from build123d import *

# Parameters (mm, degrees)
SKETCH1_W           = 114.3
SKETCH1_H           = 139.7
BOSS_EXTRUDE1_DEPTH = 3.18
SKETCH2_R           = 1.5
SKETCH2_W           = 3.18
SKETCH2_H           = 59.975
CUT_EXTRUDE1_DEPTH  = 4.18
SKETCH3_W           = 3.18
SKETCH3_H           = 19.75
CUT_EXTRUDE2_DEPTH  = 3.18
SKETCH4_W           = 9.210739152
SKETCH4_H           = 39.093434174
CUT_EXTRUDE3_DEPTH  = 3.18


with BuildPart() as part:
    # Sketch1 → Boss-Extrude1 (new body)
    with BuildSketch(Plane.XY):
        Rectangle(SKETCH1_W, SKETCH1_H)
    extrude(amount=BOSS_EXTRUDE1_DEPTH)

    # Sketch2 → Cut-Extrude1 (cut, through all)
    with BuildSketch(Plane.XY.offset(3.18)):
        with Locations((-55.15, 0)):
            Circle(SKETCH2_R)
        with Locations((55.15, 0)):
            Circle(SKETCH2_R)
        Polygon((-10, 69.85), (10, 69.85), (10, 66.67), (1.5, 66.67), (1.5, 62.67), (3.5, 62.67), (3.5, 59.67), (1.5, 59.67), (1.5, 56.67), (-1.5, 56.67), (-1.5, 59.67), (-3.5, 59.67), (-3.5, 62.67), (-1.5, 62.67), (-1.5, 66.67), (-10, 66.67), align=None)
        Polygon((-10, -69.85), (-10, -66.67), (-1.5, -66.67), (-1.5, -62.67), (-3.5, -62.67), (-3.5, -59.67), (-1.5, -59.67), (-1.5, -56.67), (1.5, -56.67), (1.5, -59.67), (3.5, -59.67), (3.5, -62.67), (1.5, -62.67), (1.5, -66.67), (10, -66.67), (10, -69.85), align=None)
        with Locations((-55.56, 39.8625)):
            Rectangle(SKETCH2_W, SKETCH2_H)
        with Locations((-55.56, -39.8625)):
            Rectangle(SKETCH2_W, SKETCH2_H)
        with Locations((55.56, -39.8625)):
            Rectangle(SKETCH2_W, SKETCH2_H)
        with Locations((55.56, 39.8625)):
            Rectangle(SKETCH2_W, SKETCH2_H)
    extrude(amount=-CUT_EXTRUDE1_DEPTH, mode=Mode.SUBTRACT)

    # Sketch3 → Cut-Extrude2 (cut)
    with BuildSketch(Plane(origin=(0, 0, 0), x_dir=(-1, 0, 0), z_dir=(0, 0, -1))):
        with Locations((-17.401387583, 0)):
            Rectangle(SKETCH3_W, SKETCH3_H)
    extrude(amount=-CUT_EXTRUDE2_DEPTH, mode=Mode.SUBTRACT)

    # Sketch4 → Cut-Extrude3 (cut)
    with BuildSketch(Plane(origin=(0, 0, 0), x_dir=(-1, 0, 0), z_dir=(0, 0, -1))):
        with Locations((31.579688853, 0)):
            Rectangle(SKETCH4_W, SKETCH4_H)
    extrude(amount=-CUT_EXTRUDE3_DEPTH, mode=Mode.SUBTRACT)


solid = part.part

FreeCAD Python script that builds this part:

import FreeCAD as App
import Part
import Sketcher

V = App.Vector

doc = App.newDocument("Part")
body = doc.addObject("PartDesign::Body", "Body")

# Sketch on XY plane
sketch1 = body.newObject("Sketcher::SketchObject", "Sketch")
sketch1.AttachmentSupport = (doc.getObject("XY_Plane"), [""])
sketch1.MapMode = "FlatFace"
sketch1.addGeometry([
    Part.LineSegment(V(-57.15, 69.85, 0), V(-57.15, -69.85, 0)),
    Part.LineSegment(V(-57.15, -69.85, 0), V(57.15, -69.85, 0)),
    Part.LineSegment(V(57.15, -69.85, 0), V(57.15, 69.85, 0)),
    Part.LineSegment(V(57.15, 69.85, 0), V(-57.15, 69.85, 0)),
], False)
sketch1.addConstraint([
    Sketcher.Constraint("Coincident", 0, 2, 1, 1),
    Sketcher.Constraint("Coincident", 1, 2, 2, 1),
    Sketcher.Constraint("Coincident", 2, 2, 3, 1),
    Sketcher.Constraint("Coincident", 3, 2, 0, 1),
    Sketcher.Constraint("Vertical", 0),
    Sketcher.Constraint("Horizontal", 1),
    Sketcher.Constraint("Vertical", 2),
    Sketcher.Constraint("Horizontal", 3),
    Sketcher.Constraint("Symmetric", 0, 2, 2, 2, -1, 1),
    Sketcher.Constraint("DistanceX", 1, 1, 1, 2, 114.3),
    Sketcher.Constraint("DistanceY", 0, 2, 0, 1, 139.7),
])
pad1 = body.newObject("PartDesign::Pad", "Pad")
pad1.Profile = sketch1
pad1.Length = 3.18

# Sketch on XY plane
sketch2 = body.newObject("Sketcher::SketchObject", "Sketch001")
sketch2.AttachmentSupport = (doc.getObject("XY_Plane"), [""])
sketch2.MapMode = "FlatFace"
sketch2.AttachmentOffset = App.Placement(V(0, 0, 3.18), App.Rotation())
sketch2.addGeometry([
    Part.Circle(V(-55.15, 0, 0), V(0, 0, 1), 1.5),  # 0
    Part.Circle(V(55.15, 0, 0), V(0, 0, 1), 1.5),  # 1
    Part.LineSegment(V(10, 69.85, 0), V(-10, 69.85, 0)),  # 2
    Part.LineSegment(V(-10, 69.85, 0), V(-10, 66.67, 0)),  # 3
    Part.LineSegment(V(-10, 66.67, 0), V(-1.5, 66.67, 0)),  # 4
    Part.LineSegment(V(-1.5, 66.67, 0), V(-1.5, 62.67, 0)),  # 5
    Part.LineSegment(V(-1.5, 62.67, 0), V(-3.5, 62.67, 0)),  # 6
    Part.LineSegment(V(-3.5, 62.67, 0), V(-3.5, 59.67, 0)),  # 7
    Part.LineSegment(V(-3.5, 59.67, 0), V(-1.5, 59.67, 0)),  # 8
    Part.LineSegment(V(-1.5, 59.67, 0), V(-1.5, 56.67, 0)),  # 9
    Part.LineSegment(V(-1.5, 56.67, 0), V(1.5, 56.67, 0)),  # 10
    Part.LineSegment(V(1.5, 56.67, 0), V(1.5, 59.67, 0)),  # 11
    Part.LineSegment(V(1.5, 59.67, 0), V(3.5, 59.67, 0)),  # 12
    Part.LineSegment(V(3.5, 59.67, 0), V(3.5, 62.67, 0)),  # 13
    Part.LineSegment(V(3.5, 62.67, 0), V(1.5, 62.67, 0)),  # 14
    Part.LineSegment(V(1.5, 62.67, 0), V(1.5, 66.67, 0)),  # 15
    Part.LineSegment(V(1.5, 66.67, 0), V(10, 66.67, 0)),  # 16
    Part.LineSegment(V(10, 66.67, 0), V(10, 69.85, 0)),  # 17
    Part.LineSegment(V(-10, -66.67, 0), V(-10, -69.85, 0)),  # 18
    Part.LineSegment(V(-10, -69.85, 0), V(10, -69.85, 0)),  # 19
    Part.LineSegment(V(10, -69.85, 0), V(10, -66.67, 0)),  # 20
    Part.LineSegment(V(10, -66.67, 0), V(1.5, -66.67, 0)),  # 21
    Part.LineSegment(V(1.5, -66.67, 0), V(1.5, -62.67, 0)),  # 22
    Part.LineSegment(V(1.5, -62.67, 0), V(3.5, -62.67, 0)),  # 23
    Part.LineSegment(V(3.5, -62.67, 0), V(3.5, -59.67, 0)),  # 24
    Part.LineSegment(V(3.5, -59.67, 0), V(1.5, -59.67, 0)),  # 25
    Part.LineSegment(V(1.5, -59.67, 0), V(1.5, -56.67, 0)),  # 26
    Part.LineSegment(V(1.5, -56.67, 0), V(-1.5, -56.67, 0)),  # 27
    Part.LineSegment(V(-1.5, -56.67, 0), V(-1.5, -59.67, 0)),  # 28
    Part.LineSegment(V(-1.5, -59.67, 0), V(-3.5, -59.67, 0)),  # 29
    Part.LineSegment(V(-3.5, -59.67, 0), V(-3.5, -62.67, 0)),  # 30
    Part.LineSegment(V(-3.5, -62.67, 0), V(-1.5, -62.67, 0)),  # 31
    Part.LineSegment(V(-1.5, -62.67, 0), V(-1.5, -66.67, 0)),  # 32
    Part.LineSegment(V(-1.5, -66.67, 0), V(-10, -66.67, 0)),  # 33
    Part.LineSegment(V(-57.15, 69.85, 0), V(-57.15, 9.875, 0)),  # 34
    Part.LineSegment(V(-57.15, 9.875, 0), V(-53.97, 9.875, 0)),  # 35
    Part.LineSegment(V(-53.97, 9.875, 0), V(-53.97, 69.85, 0)),  # 36
    Part.LineSegment(V(-53.97, 69.85, 0), V(-57.15, 69.85, 0)),  # 37
    Part.LineSegment(V(-57.15, -9.875, 0), V(-57.15, -69.85, 0)),  # 38
    Part.LineSegment(V(-57.15, -69.85, 0), V(-53.97, -69.85, 0)),  # 39
    Part.LineSegment(V(-53.97, -69.85, 0), V(-53.97, -9.875, 0)),  # 40
    Part.LineSegment(V(-53.97, -9.875, 0), V(-57.15, -9.875, 0)),  # 41
    Part.LineSegment(V(53.97, -9.875, 0), V(53.97, -69.85, 0)),  # 42
    Part.LineSegment(V(53.97, -69.85, 0), V(57.15, -69.85, 0)),  # 43
    Part.LineSegment(V(57.15, -69.85, 0), V(57.15, -9.875, 0)),  # 44
    Part.LineSegment(V(57.15, -9.875, 0), V(53.97, -9.875, 0)),  # 45
    Part.LineSegment(V(53.97, 69.85, 0), V(53.97, 9.875, 0)),  # 46
    Part.LineSegment(V(53.97, 9.875, 0), V(57.15, 9.875, 0)),  # 47
    Part.LineSegment(V(57.15, 9.875, 0), V(57.15, 69.85, 0)),  # 48
    Part.LineSegment(V(57.15, 69.85, 0), V(53.97, 69.85, 0)),  # 49
], False)
sketch2.addConstraint([
    Sketcher.Constraint("Coincident", 2, 2, 3, 1),
    Sketcher.Constraint("Coincident", 3, 2, 4, 1),
    Sketcher.Constraint("Coincident", 4, 2, 5, 1),
    Sketcher.Constraint("Coincident", 5, 2, 6, 1),
    Sketcher.Constraint("Coincident", 6, 2, 7, 1),
    Sketcher.Constraint("Coincident", 7, 2, 8, 1),
    Sketcher.Constraint("Coincident", 8, 2, 9, 1),
    Sketcher.Constraint("Coincident", 9, 2, 10, 1),
    Sketcher.Constraint("Coincident", 10, 2, 11, 1),
    Sketcher.Constraint("Coincident", 11, 2, 12, 1),
    Sketcher.Constraint("Coincident", 12, 2, 13, 1),
    Sketcher.Constraint("Coincident", 13, 2, 14, 1),
    Sketcher.Constraint("Coincident", 14, 2, 15, 1),
    Sketcher.Constraint("Coincident", 15, 2, 16, 1),
    Sketcher.Constraint("Coincident", 16, 2, 17, 1),
    Sketcher.Constraint("Coincident", 17, 2, 2, 1),
    Sketcher.Constraint("Coincident", 18, 2, 19, 1),
    Sketcher.Constraint("Coincident", 19, 2, 20, 1),
    Sketcher.Constraint("Coincident", 20, 2, 21, 1),
    Sketcher.Constraint("Coincident", 21, 2, 22, 1),
    Sketcher.Constraint("Coincident", 22, 2, 23, 1),
    Sketcher.Constraint("Coincident", 23, 2, 24, 1),
    Sketcher.Constraint("Coincident", 24, 2, 25, 1),
    Sketcher.Constraint("Coincident", 25, 2, 26, 1),
    Sketcher.Constraint("Coincident", 26, 2, 27, 1),
    Sketcher.Constraint("Coincident", 27, 2, 28, 1),
    Sketcher.Constraint("Coincident", 28, 2, 29, 1),
    Sketcher.Constraint("Coincident", 29, 2, 30, 1),
    Sketcher.Constraint("Coincident", 30, 2, 31, 1),
    Sketcher.Constraint("Coincident", 31, 2, 32, 1),
    Sketcher.Constraint("Coincident", 32, 2, 33, 1),
    Sketcher.Constraint("Coincident", 33, 2, 18, 1),
    Sketcher.Constraint("Coincident", 34, 2, 35, 1),
    Sketcher.Constraint("Coincident", 35, 2, 36, 1),
    Sketcher.Constraint("Coincident", 36, 2, 37, 1),
    Sketcher.Constraint("Coincident", 37, 2, 34, 1),
    Sketcher.Constraint("Coincident", 38, 2, 39, 1),
    Sketcher.Constraint("Coincident", 39, 2, 40, 1),
    Sketcher.Constraint("Coincident", 40, 2, 41, 1),
    Sketcher.Constraint("Coincident", 41, 2, 38, 1),
    Sketcher.Constraint("Coincident", 42, 2, 43, 1),
    Sketcher.Constraint("Coincident", 43, 2, 44, 1),
    Sketcher.Constraint("Coincident", 44, 2, 45, 1),
    Sketcher.Constraint("Coincident", 45, 2, 42, 1),
    Sketcher.Constraint("Coincident", 46, 2, 47, 1),
    Sketcher.Constraint("Coincident", 47, 2, 48, 1),
    Sketcher.Constraint("Coincident", 48, 2, 49, 1),
    Sketcher.Constraint("Coincident", 49, 2, 46, 1),
    Sketcher.Constraint("Horizontal", 2),
    Sketcher.Constraint("Vertical", 3),
    Sketcher.Constraint("Horizontal", 4),
    Sketcher.Constraint("Vertical", 5),
    Sketcher.Constraint("Horizontal", 6),
    Sketcher.Constraint("Vertical", 7),
    Sketcher.Constraint("Horizontal", 8),
    Sketcher.Constraint("Vertical", 9),
    Sketcher.Constraint("Horizontal", 10),
    Sketcher.Constraint("Vertical", 11),
    Sketcher.Constraint("Horizontal", 12),
    Sketcher.Constraint("Vertical", 13),
    Sketcher.Constraint("Horizontal", 14),
    Sketcher.Constraint("Vertical", 15),
    Sketcher.Constraint("Horizontal", 16),
    Sketcher.Constraint("Vertical", 17),
    Sketcher.Constraint("Vertical", 18),
    Sketcher.Constraint("Horizontal", 19),
    Sketcher.Constraint("Vertical", 20),
    Sketcher.Constraint("Horizontal", 21),
    Sketcher.Constraint("Vertical", 22),
    Sketcher.Constraint("Horizontal", 23),
    Sketcher.Constraint("Vertical", 24),
    Sketcher.Constraint("Horizontal", 25),
    Sketcher.Constraint("Vertical", 26),
    Sketcher.Constraint("Horizontal", 27),
    Sketcher.Constraint("Vertical", 28),
    Sketcher.Constraint("Horizontal", 29),
    Sketcher.Constraint("Vertical", 30),
    Sketcher.Constraint("Horizontal", 31),
    Sketcher.Constraint("Vertical", 32),
    Sketcher.Constraint("Horizontal", 33),
    Sketcher.Constraint("Vertical", 34),
    Sketcher.Constraint("Horizontal", 35),
    Sketcher.Constraint("Vertical", 36),
    Sketcher.Constraint("Horizontal", 37),
    Sketcher.Constraint("Vertical", 38),
    Sketcher.Constraint("Horizontal", 39),
    Sketcher.Constraint("Vertical", 40),
    Sketcher.Constraint("Horizontal", 41),
    Sketcher.Constraint("Vertical", 42),
    Sketcher.Constraint("Horizontal", 43),
    Sketcher.Constraint("Vertical", 44),
    Sketcher.Constraint("Horizontal", 45),
    Sketcher.Constraint("Vertical", 46),
    Sketcher.Constraint("Horizontal", 47),
    Sketcher.Constraint("Vertical", 48),
    Sketcher.Constraint("Horizontal", 49),
    Sketcher.Constraint("Equal", 0, 1),
    Sketcher.Constraint("Symmetric", 0, 3, 1, 3, -1, 1),
    Sketcher.Constraint("Symmetric", 17, 2, 18, 2, -1, 1),
    Sketcher.Constraint("Symmetric", 3, 2, 20, 2, -1, 1),
    Sketcher.Constraint("Symmetric", 5, 2, 22, 2, -1, 1),
    Sketcher.Constraint("Symmetric", 7, 2, 24, 2, -1, 1),
    Sketcher.Constraint("Symmetric", 9, 2, 26, 2, -1, 1),
    Sketcher.Constraint("Symmetric", 11, 2, 28, 2, -1, 1),
    Sketcher.Constraint("Symmetric", 13, 2, 30, 2, -1, 1),
    Sketcher.Constraint("Symmetric", 15, 2, 32, 2, -1, 1),
    Sketcher.Constraint("Symmetric", 36, 2, 42, 2, -1, 1),
    Sketcher.Constraint("Symmetric", 34, 2, 44, 2, -1, 1),
    Sketcher.Constraint("Symmetric", 40, 2, 46, 2, -1, 1),
    Sketcher.Constraint("Symmetric", 38, 2, 48, 2, -1, 1),
    Sketcher.Constraint("Symmetric", 8, 2, 11, 2, -2),
    Sketcher.Constraint("Symmetric", 6, 2, 13, 2, -2),
    Sketcher.Constraint("Symmetric", 4, 2, 15, 2, -2),
    Sketcher.Constraint("Symmetric", 39, 2, 42, 2, -2),
    Sketcher.Constraint("Symmetric", 41, 2, 44, 2, -2),
    Sketcher.Constraint("PointOnObject", 0, 3, -1),
    Sketcher.Constraint("Horizontal", 17, 2, 36, 2),
    Sketcher.Constraint("Vertical", 5, 2, 8, 2),
    Sketcher.Constraint("Vertical", 3, 2, 18, 2),
    Sketcher.Constraint("Equal", 49, 3),
    Sketcher.Constraint("Equal", 27, 7),
    Sketcher.Constraint("Equal", 7, 9),
    Sketcher.Constraint("Diameter", 0, 3.0),
    Sketcher.Constraint("DistanceX", 2, 2, 2, 1, 20.0),
    Sketcher.Constraint("DistanceX", 6, 2, 6, 1, 2.0),
    Sketcher.Constraint("DistanceX", 10, 1, 10, 2, 3.0),
    Sketcher.Constraint("DistanceY", 5, 2, 5, 1, 4.0),
    Sketcher.Constraint("DistanceX", 34, 2, 0, 3, 2.0),
    Sketcher.Constraint("DistanceX", 35, 1, 35, 2, 3.18),
    Sketcher.Constraint("DistanceX", 0, 3, 1, 3, 110.3),
    Sketcher.Constraint("DistanceY", 34, 2, 34, 1, 59.975),
    Sketcher.Constraint("DistanceY", -1, 1, 2, 2, 69.85),
])
pocket1 = body.newObject("PartDesign::Pocket", "Pocket")
pocket1.Profile = sketch2
pocket1.Type = "ThroughAll"

# Sketch on XY plane
sketch3 = body.newObject("Sketcher::SketchObject", "Sketch002")
sketch3.AttachmentSupport = (doc.getObject("XY_Plane"), [""])
sketch3.MapMode = "FlatFace"
sketch3.addGeometry([
    Part.LineSegment(V(18.991388, 9.875, 0), V(18.991388, -9.875, 0)),
    Part.LineSegment(V(18.991388, -9.875, 0), V(15.811388, -9.875, 0)),
    Part.LineSegment(V(15.811388, -9.875, 0), V(15.811388, 9.875, 0)),
    Part.LineSegment(V(15.811388, 9.875, 0), V(18.991388, 9.875, 0)),
], False)
sketch3.addConstraint([
    Sketcher.Constraint("Coincident", 0, 2, 1, 1),
    Sketcher.Constraint("Coincident", 1, 2, 2, 1),
    Sketcher.Constraint("Coincident", 2, 2, 3, 1),
    Sketcher.Constraint("Coincident", 3, 2, 0, 1),
    Sketcher.Constraint("Vertical", 0),
    Sketcher.Constraint("Horizontal", 1),
    Sketcher.Constraint("Vertical", 2),
    Sketcher.Constraint("Horizontal", 3),
    Sketcher.Constraint("DistanceX", 1, 2, 1, 1, 3.18),
    Sketcher.Constraint("DistanceY", 0, 2, 0, 1, 19.75),
    Sketcher.Constraint("DistanceY", 0, 2, -1, 1, 9.875),
    Sketcher.Constraint("DistanceX", -1, 1, 0, 2, 18.991388),
])
pocket2 = body.newObject("PartDesign::Pocket", "Pocket001")
pocket2.Profile = sketch3
pocket2.Length = 3.18
pocket2.Reversed = True

# Sketch on XY plane
sketch4 = body.newObject("Sketcher::SketchObject", "Sketch003")
sketch4.AttachmentSupport = (doc.getObject("XY_Plane"), [""])
sketch4.MapMode = "FlatFace"
sketch4.addGeometry([
    Part.LineSegment(V(-26.974319, 19.546717, 0), V(-26.974319, -19.546717, 0)),
    Part.LineSegment(V(-26.974319, -19.546717, 0), V(-36.185058, -19.546717, 0)),
    Part.LineSegment(V(-36.185058, -19.546717, 0), V(-36.185058, 19.546717, 0)),
    Part.LineSegment(V(-36.185058, 19.546717, 0), V(-26.974319, 19.546717, 0)),
], False)
sketch4.addConstraint([
    Sketcher.Constraint("Coincident", 0, 2, 1, 1),
    Sketcher.Constraint("Coincident", 1, 2, 2, 1),
    Sketcher.Constraint("Coincident", 2, 2, 3, 1),
    Sketcher.Constraint("Coincident", 3, 2, 0, 1),
    Sketcher.Constraint("Vertical", 0),
    Sketcher.Constraint("Horizontal", 1),
    Sketcher.Constraint("Vertical", 2),
    Sketcher.Constraint("Horizontal", 3),
    Sketcher.Constraint("DistanceX", 1, 2, 1, 1, 9.210739),
    Sketcher.Constraint("DistanceY", 0, 2, 0, 1, 39.093434),
    Sketcher.Constraint("DistanceX", 0, 2, -1, 1, 26.974319),
    Sketcher.Constraint("DistanceY", 0, 2, -1, 1, 19.546717),
])
pocket3 = body.newObject("PartDesign::Pocket", "Pocket002")
pocket3.Profile = sketch4
pocket3.Length = 3.18
pocket3.Reversed = True

doc.recompute()
